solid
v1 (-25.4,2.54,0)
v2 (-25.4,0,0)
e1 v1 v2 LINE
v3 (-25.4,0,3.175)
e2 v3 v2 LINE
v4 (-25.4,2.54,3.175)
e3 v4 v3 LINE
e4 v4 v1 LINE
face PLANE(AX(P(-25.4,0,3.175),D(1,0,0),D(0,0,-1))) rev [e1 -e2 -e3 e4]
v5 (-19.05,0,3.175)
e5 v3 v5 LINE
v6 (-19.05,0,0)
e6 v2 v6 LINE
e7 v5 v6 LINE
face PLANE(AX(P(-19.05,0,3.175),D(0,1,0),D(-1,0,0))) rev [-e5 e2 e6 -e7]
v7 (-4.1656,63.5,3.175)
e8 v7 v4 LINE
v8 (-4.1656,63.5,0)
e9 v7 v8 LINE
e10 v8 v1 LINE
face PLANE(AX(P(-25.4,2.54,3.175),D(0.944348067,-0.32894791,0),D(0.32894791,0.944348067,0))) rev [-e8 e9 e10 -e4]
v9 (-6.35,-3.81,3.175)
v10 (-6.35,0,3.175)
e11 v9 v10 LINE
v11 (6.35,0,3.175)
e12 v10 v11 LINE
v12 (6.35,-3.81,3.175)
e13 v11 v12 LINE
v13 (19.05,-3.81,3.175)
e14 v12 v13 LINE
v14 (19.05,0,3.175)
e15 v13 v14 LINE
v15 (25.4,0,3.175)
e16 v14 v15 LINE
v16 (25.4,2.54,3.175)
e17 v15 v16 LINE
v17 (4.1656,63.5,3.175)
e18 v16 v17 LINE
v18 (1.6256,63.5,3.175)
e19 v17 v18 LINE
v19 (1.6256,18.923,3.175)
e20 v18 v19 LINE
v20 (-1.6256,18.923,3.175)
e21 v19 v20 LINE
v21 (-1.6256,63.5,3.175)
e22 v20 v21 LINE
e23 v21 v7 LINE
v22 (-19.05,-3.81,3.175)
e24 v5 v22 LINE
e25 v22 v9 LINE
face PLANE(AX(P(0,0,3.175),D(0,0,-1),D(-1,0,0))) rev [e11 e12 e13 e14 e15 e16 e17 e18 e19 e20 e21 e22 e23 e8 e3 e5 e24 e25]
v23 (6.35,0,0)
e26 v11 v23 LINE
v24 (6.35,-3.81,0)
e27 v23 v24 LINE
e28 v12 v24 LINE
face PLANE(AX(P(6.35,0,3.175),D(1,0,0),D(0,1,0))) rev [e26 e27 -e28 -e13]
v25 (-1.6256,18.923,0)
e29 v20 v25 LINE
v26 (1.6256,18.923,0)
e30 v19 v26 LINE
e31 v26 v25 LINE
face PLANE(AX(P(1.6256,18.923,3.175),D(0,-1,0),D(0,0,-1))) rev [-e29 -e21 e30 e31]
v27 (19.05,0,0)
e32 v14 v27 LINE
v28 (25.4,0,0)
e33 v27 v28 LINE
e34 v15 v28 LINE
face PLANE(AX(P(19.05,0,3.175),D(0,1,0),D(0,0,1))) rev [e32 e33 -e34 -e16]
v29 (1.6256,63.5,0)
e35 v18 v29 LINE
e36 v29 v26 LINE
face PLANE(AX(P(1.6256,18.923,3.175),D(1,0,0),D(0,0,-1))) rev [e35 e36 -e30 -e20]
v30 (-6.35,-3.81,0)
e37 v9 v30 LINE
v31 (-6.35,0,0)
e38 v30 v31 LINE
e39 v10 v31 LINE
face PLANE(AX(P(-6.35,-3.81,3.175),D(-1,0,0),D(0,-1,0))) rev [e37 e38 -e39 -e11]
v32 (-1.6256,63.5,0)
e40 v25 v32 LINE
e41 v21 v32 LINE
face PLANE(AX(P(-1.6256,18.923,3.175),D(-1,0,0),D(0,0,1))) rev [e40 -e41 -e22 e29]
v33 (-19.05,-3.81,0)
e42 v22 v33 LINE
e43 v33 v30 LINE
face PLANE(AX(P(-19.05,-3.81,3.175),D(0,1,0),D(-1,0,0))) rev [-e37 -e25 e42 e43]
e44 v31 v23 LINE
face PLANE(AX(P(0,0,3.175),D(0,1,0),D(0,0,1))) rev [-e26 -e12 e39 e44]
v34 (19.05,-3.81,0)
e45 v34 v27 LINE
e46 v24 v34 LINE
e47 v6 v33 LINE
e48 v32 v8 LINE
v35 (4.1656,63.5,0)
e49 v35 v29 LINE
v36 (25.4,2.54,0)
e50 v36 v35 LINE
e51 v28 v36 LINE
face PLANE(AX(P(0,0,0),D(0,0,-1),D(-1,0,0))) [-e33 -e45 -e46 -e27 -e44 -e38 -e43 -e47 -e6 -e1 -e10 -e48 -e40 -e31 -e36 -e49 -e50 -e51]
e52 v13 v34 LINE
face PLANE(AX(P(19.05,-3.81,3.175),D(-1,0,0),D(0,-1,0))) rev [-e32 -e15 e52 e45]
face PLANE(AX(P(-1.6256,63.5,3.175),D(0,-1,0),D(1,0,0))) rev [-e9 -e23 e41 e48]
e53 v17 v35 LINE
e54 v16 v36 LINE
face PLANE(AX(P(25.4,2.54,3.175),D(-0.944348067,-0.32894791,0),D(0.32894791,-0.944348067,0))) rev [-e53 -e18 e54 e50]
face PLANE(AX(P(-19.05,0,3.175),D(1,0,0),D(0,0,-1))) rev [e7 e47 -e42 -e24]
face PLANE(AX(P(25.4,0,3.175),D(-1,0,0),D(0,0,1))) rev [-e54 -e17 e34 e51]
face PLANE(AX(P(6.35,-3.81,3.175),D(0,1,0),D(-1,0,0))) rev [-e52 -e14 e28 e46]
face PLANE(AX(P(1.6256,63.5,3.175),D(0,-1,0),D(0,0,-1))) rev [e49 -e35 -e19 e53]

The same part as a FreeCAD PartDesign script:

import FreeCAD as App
import Part
import Sketcher

V = App.Vector
Q = App.Units.Quantity

doc = App.newDocument("Part")
body = doc.addObject("PartDesign::Body", "Body")

# Sketch on XY plane
sketch1 = body.newObject("Sketcher::SketchObject", "Sketch")
sketch1.AttachmentSupport = (doc.getObject("XY_Plane"), [""])
sketch1.MapMode = "FlatFace"
sketch1.addGeometry(Part.LineSegment(V(-1.6, 18.9, 0), V(-1.6, 63.5, 0)), False)
sketch1.addGeometry(Part.LineSegment(V(-1.6, 63.5, 0), V(-4.2, 63.5, 0)), False)
sketch1.addGeometry(Part.LineSegment(V(-4.2, 63.5, 0), V(-25.4, 2.5, 0)), False)
sketch1.addGeometry(Part.LineSegment(V(-25.4, 2.5, 0), V(-25.4, 0, 0)), False)
sketch1.addGeometry(Part.LineSegment(V(-25.4, 0, 0), V(-19.1, 0, 0)), False)
sketch1.addGeometry(Part.LineSegment(V(-19.1, 0, 0), V(-19.1, -3.8, 0)), False)
sketch1.addGeometry(Part.LineSegment(V(-19.1, -3.8, 0), V(-6.3, -3.8, 0)), False)
sketch1.addGeometry(Part.LineSegment(V(-6.3, -3.8, 0), V(-6.3, 0, 0)), False)
sketch1.addGeometry(Part.LineSegment(V(-6.3, 0, 0), V(6.3, 0, 0)), False)
sketch1.addGeometry(Part.LineSegment(V(6.3, 0, 0), V(6.3, -3.8, 0)), False)
sketch1.addGeometry(Part.LineSegment(V(6.3, -3.8, 0), V(19.1, -3.8, 0)), False)
sketch1.addGeometry(Part.LineSegment(V(19.1, -3.8, 0), V(19.1, 0, 0)), False)
sketch1.addGeometry(Part.LineSegment(V(19.1, 0, 0), V(25.4, 0, 0)), False)
sketch1.addGeometry(Part.LineSegment(V(25.4, 0, 0), V(25.4, 2.5, 0)), False)
sketch1.addGeometry(Part.LineSegment(V(25.4, 2.5, 0), V(4.2, 63.5, 0)), False)
sketch1.addGeometry(Part.LineSegment(V(4.2, 63.5, 0), V(1.6, 63.5, 0)), False)
sketch1.addGeometry(Part.LineSegment(V(1.6, 63.5, 0), V(1.6, 18.9, 0)), False)
sketch1.addGeometry(Part.LineSegment(V(1.6, 18.9, 0), V(-1.6, 18.9, 0)), False)
sketch1.addConstraint(Sketcher.Constraint("Coincident", 0, 2, 1, 1))
sketch1.addConstraint(Sketcher.Constraint("Coincident", 1, 2, 2, 1))
sketch1.addConstraint(Sketcher.Constraint("Coincident", 2, 2, 3, 1))
sketch1.addConstraint(Sketcher.Constraint("Coincident", 3, 2, 4, 1))
sketch1.addConstraint(Sketcher.Constraint("Coincident", 4, 2, 5, 1))
sketch1.addConstraint(Sketcher.Constraint("Coincident", 5, 2, 6, 1))
sketch1.addConstraint(Sketcher.Constraint("Coincident", 6, 2, 7, 1))
sketch1.addConstraint(Sketcher.Constraint("Coincident", 7, 2, 8, 1))
sketch1.addConstraint(Sketcher.Constraint("Coincident", 8, 2, 9, 1))
sketch1.addConstraint(Sketcher.Constraint("Coincident", 9, 2, 10, 1))
sketch1.addConstraint(Sketcher.Constraint("Coincident", 10, 2, 11, 1))
sketch1.addConstraint(Sketcher.Constraint("Coincident", 11, 2, 12, 1))
sketch1.addConstraint(Sketcher.Constraint("Coincident", 12, 2, 13, 1))
sketch1.addConstraint(Sketcher.Constraint("Coincident", 13, 2, 14, 1))
sketch1.addConstraint(Sketcher.Constraint("Coincident", 14, 2, 15, 1))
sketch1.addConstraint(Sketcher.Constraint("Coincident", 15, 2, 16, 1))
sketch1.addConstraint(Sketcher.Constraint("Coincident", 16, 2, 17, 1))
sketch1.addConstraint(Sketcher.Constraint("Coincident", 17, 2, 0, 1))
sketch1.addConstraint(Sketcher.Constraint("Vertical", 0))
sketch1.addConstraint(Sketcher.Constraint("Horizontal", 1))
sketch1.addConstraint(Sketcher.Constraint("Vertical", 3))
sketch1.addConstraint(Sketcher.Constraint("Horizontal", 4))
sketch1.addConstraint(Sketcher.Constraint("Vertical", 5))
sketch1.addConstraint(Sketcher.Constraint("Horizontal", 6))
sketch1.addConstraint(Sketcher.Constraint("Vertical", 7))
sketch1.addConstraint(Sketcher.Constraint("Horizontal", 8))
sketch1.addConstraint(Sketcher.Constraint("Vertical", 9))
sketch1.addConstraint(Sketcher.Constraint("Horizontal", 10))
sketch1.addConstraint(Sketcher.Constraint("Vertical", 11))
sketch1.addConstraint(Sketcher.Constraint("Horizontal", 12))
sketch1.addConstraint(Sketcher.Constraint("Vertical", 13))
sketch1.addConstraint(Sketcher.Constraint("Horizontal", 15))
sketch1.addConstraint(Sketcher.Constraint("Vertical", 16))
sketch1.addConstraint(Sketcher.Constraint("Horizontal", 17))
sketch1.addConstraint(Sketcher.Constraint("Symmetric", 7, 2, 8, 2, -1, 1))
sketch1.addConstraint(Sketcher.Constraint("Symmetric", 4, 2, 11, 2, -1, 1))
sketch1.addConstraint(Sketcher.Constraint("Symmetric", 3, 2, 12, 2, -2))
sketch1.addConstraint(Sketcher.Constraint("Symmetric", 1, 2, 14, 2, -2))
sketch1.addConstraint(Sketcher.Constraint("Horizontal", 6, 2, 9, 2))
sketch1.addConstraint(Sketcher.Constraint("Horizontal", 2, 2, 13, 2))
sketch1.addConstraint(Sketcher.Constraint("Equal", 6, 8))
sketch1.addConstraint(Sketcher.Constraint("Equal", 1, 15))
sketch1.addConstraint(Sketcher.Constraint("Equal", 15, 3))
sketch1.addConstraint(Sketcher.Constraint("DistanceX", 1, 2, 1, 1, Q("0.1 in")))
sketch1.addConstraint(Sketcher.Constraint("DistanceX", 6, 1, 6, 2, Q("0.5 in")))
sketch1.addConstraint(Sketcher.Constraint("DistanceX", 2, 2, -1, 1, Q("1 in")))
sketch1.addConstraint(Sketcher.Constraint("DistanceY", 5, 2, 5, 1, Q("0.15 in")))
sketch1.addConstraint(Sketcher.Constraint("DistanceY", -1, 1, 0, 2, Q("2.5 in")))
sketch1.addConstraint(Sketcher.Constraint("DistanceX", 17, 2, 17, 1, Q("0.128 in")))
sketch1.addConstraint(Sketcher.Constraint("DistanceY", 0, 1, 0, 2, Q("1.755 in")))
pad1 = body.newObject("PartDesign::Pad", "Pad")
pad1.Profile = sketch1
pad1.Length = Q("0.125 in")

doc.recompute()
